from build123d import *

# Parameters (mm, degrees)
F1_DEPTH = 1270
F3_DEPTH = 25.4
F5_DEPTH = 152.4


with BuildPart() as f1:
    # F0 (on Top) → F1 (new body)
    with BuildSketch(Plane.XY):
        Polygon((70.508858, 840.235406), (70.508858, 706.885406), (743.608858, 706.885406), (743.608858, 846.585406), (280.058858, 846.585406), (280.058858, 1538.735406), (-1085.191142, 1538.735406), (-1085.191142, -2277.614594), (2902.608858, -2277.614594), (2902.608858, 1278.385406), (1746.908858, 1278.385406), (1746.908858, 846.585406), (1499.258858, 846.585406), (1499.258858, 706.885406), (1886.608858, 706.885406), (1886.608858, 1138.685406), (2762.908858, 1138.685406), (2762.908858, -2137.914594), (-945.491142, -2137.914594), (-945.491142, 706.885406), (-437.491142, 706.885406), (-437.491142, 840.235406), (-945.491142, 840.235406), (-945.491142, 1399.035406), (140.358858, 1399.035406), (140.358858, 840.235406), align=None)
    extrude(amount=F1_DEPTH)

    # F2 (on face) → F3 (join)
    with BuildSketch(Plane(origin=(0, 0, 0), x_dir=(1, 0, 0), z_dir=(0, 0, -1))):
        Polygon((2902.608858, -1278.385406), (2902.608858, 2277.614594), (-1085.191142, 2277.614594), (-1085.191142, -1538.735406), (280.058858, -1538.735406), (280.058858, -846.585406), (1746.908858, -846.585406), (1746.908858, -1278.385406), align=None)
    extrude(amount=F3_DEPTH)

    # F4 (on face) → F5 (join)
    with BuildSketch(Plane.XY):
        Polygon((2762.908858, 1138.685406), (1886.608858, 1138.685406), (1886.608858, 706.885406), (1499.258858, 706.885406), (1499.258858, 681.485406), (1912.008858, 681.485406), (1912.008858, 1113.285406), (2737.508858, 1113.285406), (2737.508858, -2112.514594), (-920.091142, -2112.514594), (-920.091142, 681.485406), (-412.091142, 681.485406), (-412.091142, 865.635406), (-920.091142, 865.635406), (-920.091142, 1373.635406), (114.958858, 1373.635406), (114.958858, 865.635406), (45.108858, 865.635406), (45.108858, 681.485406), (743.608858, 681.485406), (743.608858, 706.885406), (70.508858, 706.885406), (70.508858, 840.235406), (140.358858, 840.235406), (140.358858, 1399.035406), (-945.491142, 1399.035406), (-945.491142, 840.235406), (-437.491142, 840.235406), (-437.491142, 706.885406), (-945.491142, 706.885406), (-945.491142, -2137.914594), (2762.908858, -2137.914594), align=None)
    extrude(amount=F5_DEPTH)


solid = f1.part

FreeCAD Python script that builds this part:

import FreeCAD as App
import Part
import Sketcher
Q = App.Units.Quantity


def add_polygon(sketch, points):
    """Adds a closed chain of lines whose ends are joined by coincident constraints."""
    first, n = sketch.GeometryCount, len(points)
    for a, b in zip(points, points[1:] + points[:1]):
        sketch.addGeometry(Part.LineSegment(App.Vector(*a, 0), App.Vector(*b, 0)), False)
    for i in range(n):
        sketch.addConstraint(Sketcher.Constraint("Coincident", first + i, 2, first + (i + 1) % n, 1))

doc = App.newDocument("Part")
body = doc.addObject("PartDesign::Body", "Body")

sketch1 = body.newObject("Sketcher::SketchObject", "Sketch")
sketch1.AttachmentSupport = (doc.getObject("XY_Plane"), [""])
sketch1.MapMode = "FlatFace"
add_polygon(sketch1, [(71, 840), (71, 707), (744, 707), (744, 847), (280, 847), (280, 1539), (-1085, 1539), (-1085, -2278), (2903, -2278), (2903, 1278), (1747, 1278), (1747, 847), (1499, 847), (1499, 707), (1887, 707), (1887, 1139), (2763, 1139), (2763, -2138), (-945, -2138), (-945, 707), (-437, 707), (-437, 840), (-945, 840), (-945, 1399), (140, 1399), (140, 840)])
sketch1.addConstraint([
    Sketcher.Constraint("Vertical", 0),
    Sketcher.Constraint("Horizontal", 1),
    Sketcher.Constraint("Vertical", 2),
    Sketcher.Constraint("Horizontal", 3),
    Sketcher.Constraint("Vertical", 4),
    Sketcher.Constraint("Horizontal", 5),
    Sketcher.Constraint("Vertical", 6),
    Sketcher.Constraint("Horizontal", 7),
    Sketcher.Constraint("Vertical", 8),
    Sketcher.Constraint("Horizontal", 9),
    Sketcher.Constraint("Vertical", 10),
    Sketcher.Constraint("Horizontal", 11),
    Sketcher.Constraint("Vertical", 12),
    Sketcher.Constraint("Horizontal", 13),
    Sketcher.Constraint("Vertical", 14),
    Sketcher.Constraint("Horizontal", 15),
    Sketcher.Constraint("Vertical", 16),
    Sketcher.Constraint("Horizontal", 17),
    Sketcher.Constraint("Vertical", 18),
    Sketcher.Constraint("Horizontal", 19),
    Sketcher.Constraint("Vertical", 20),
    Sketcher.Constraint("Horizontal", 21),
    Sketcher.Constraint("Vertical", 22),
    Sketcher.Constraint("Horizontal", 23),
    Sketcher.Constraint("Vertical", 24),
    Sketcher.Constraint("Horizontal", 25),
    Sketcher.Constraint("Horizontal", 3, 2, 10, 2),
    Sketcher.Constraint("Horizontal", 1, 2, 12, 2),
    Sketcher.Constraint("Horizontal", 13, 2, 18, 2),
    Sketcher.Constraint("Horizontal", 21, 2, 24, 2),
    Sketcher.Constraint("Vertical", 18, 2, 21, 2),
    Sketcher.Constraint("Equal", 10, 14),
    Sketcher.Constraint("DistanceX", 7, 1, 7, 2, Q("157 in")),
    Sketcher.Constraint("DistanceX", 17, 2, 17, 1, Q("146 in")),
    Sketcher.Constraint("DistanceX", 19, 1, 19, 2, Q("20 in")),
    Sketcher.Constraint("DistanceY", 8, 1, 8, 2, Q("140 in")),
    Sketcher.Constraint("DistanceY", 10, 2, 10, 1, Q("17 in")),
    Sketcher.Constraint("DistanceY", 16, 2, 16, 1, Q("129 in")),
    Sketcher.Constraint("DistanceY", 22, 1, 22, 2, Q("22 in")),
    Sketcher.Constraint("DistanceX", 1, 1, 1, 2, Q("26.5 in")),
    Sketcher.Constraint("DistanceX", 9, 2, 9, 1, Q("45.5 in")),
    Sketcher.Constraint("DistanceX", 15, 1, 15, 2, Q("34.5 in")),
    Sketcher.Constraint("DistanceY", 2, 1, 2, 2, Q("5.5 in")),
    Sketcher.Constraint("DistanceX", 5, 2, 2, 2, Q("72 in")),
    Sketcher.Constraint("DistanceX", 3, 2, 11, 2, Q("48 in")),
    Sketcher.Constraint("DistanceX", 1, 2, 13, 2, Q("45 in")),
    Sketcher.Constraint("DistanceX", 3, 2, 3, 1, Q("18.25 in")),
    Sketcher.Constraint("DistanceX", 23, 1, 23, 2, Q("42.75 in")),
    Sketcher.Constraint("DistanceY", 0, 2, 0, 1, Q("5.25 in")),
    Sketcher.Constraint("DistanceY", 4, 1, 4, 2, Q("27.25 in")),
    Sketcher.Constraint("DistanceX", -1, 1, 0, 2, Q("70.508858 mm")),
    Sketcher.Constraint("DistanceY", -1, 1, 0, 2, Q("706.885406 mm")),
])
pad1 = body.newObject("PartDesign::Pad", "Pad")
pad1.Profile = sketch1
pad1.Length = Q("50 in")

sketch2 = body.newObject("Sketcher::SketchObject", "Sketch001")
sketch2.AttachmentSupport = (doc.getObject("XY_Plane"), [""])
sketch2.MapMode = "FlatFace"
add_polygon(sketch2, [(2903, 1278), (2903, -2278), (-1085, -2278), (-1085, 1539), (280, 1539), (280, 847), (1747, 847), (1747, 1278)])
sketch2.addConstraint([
    Sketcher.Constraint("Vertical", 0),
    Sketcher.Constraint("Horizontal", 1),
    Sketcher.Constraint("Vertical", 2),
    Sketcher.Constraint("Horizontal", 3),
    Sketcher.Constraint("Vertical", 4),
    Sketcher.Constraint("Horizontal", 5),
    Sketcher.Constraint("Vertical", 6),
    Sketcher.Constraint("Horizontal", 7),
    Sketcher.Constraint("DistanceX", 1, 2, 1, 1, Q("157 in")),
    Sketcher.Constraint("DistanceY", 0, 2, 0, 1, Q("140 in")),
    Sketcher.Constraint("DistanceY", 6, 1, 6, 2, Q("17 in")),
    Sketcher.Constraint("DistanceX", 7, 1, 7, 2, Q("45.5 in")),
    Sketcher.Constraint("DistanceX", 3, 1, 3, 2, Q("53.75 in")),
    Sketcher.Constraint("DistanceY", 2, 1, 2, 2, Q("150.25 in")),
    Sketcher.Constraint("DistanceX", -1, 1, 0, 2, Q("2902.608858 mm")),
    Sketcher.Constraint("DistanceY", 0, 2, -1, 1, Q("2277.614594 mm")),
])
pad2 = body.newObject("PartDesign::Pad", "Pad001")
pad2.Profile = sketch2
pad2.Length = Q("1 in")
pad2.Reversed = True

sketch3 = body.newObject("Sketcher::SketchObject", "Sketch002")
sketch3.AttachmentSupport = (doc.getObject("XY_Plane"), [""])
sketch3.MapMode = "FlatFace"
add_polygon(sketch3, [(2763, 1139), (1887, 1139), (1887, 707), (1499, 707), (1499, 681), (1912, 681), (1912, 1113), (2738, 1113), (2738, -2113), (-920, -2113), (-920, 681), (-412, 681), (-412, 866), (-920, 866), (-920, 1374), (115, 1374), (115, 866), (45, 866), (45, 681), (744, 681), (744, 707), (71, 707), (71, 840), (140, 840), (140, 1399), (-945, 1399), (-945, 840), (-437, 840), (-437, 707), (-945, 707), (-945, -2138), (2763, -2138)])
sketch3.addConstraint([
    Sketcher.Constraint("Horizontal", 0),
    Sketcher.Constraint("Vertical", 1),
    Sketcher.Constraint("Horizontal", 2),
    Sketcher.Constraint("Vertical", 3),
    Sketcher.Constraint("Horizontal", 4),
    Sketcher.Constraint("Vertical", 5),
    Sketcher.Constraint("Horizontal", 6),
    Sketcher.Constraint("Vertical", 7),
    Sketcher.Constraint("Horizontal", 8),
    Sketcher.Constraint("Vertical", 9),
    Sketcher.Constraint("Horizontal", 10),
    Sketcher.Constraint("Vertical", 11),
    Sketcher.Constraint("Horizontal", 12),
    Sketcher.Constraint("Vertical", 13),
    Sketcher.Constraint("Horizontal", 14),
    Sketcher.Constraint("Vertical", 15),
    Sketcher.Constraint("Horizontal", 16),
    Sketcher.Constraint("Vertical", 17),
    Sketcher.Constraint("Horizontal", 18),
    Sketcher.Constraint("Vertical", 19),
    Sketcher.Constraint("Horizontal", 20),
    Sketcher.Constraint("Vertical", 21),
    Sketcher.Constraint("Horizontal", 22),
    Sketcher.Constraint("Vertical", 23),
    Sketcher.Constraint("Horizontal", 24),
    Sketcher.Constraint("Vertical", 25),
    Sketcher.Constraint("Horizontal", 26),
    Sketcher.Constraint("Vertical", 27),
    Sketcher.Constraint("Horizontal", 28),
    Sketcher.Constraint("Vertical", 29),
    Sketcher.Constraint("Horizontal", 30),
    Sketcher.Constraint("Vertical", 31),
    Sketcher.Constraint("Horizontal", 4, 2, 9, 2),
    Sketcher.Constraint("Horizontal", 12, 2, 15, 2),
    Sketcher.Constraint("Horizontal", 10, 2, 17, 2),
    Sketcher.Constraint("Horizontal", 2, 2, 19, 2),
    Sketcher.Constraint("Horizontal", 22, 2, 25, 2),
    Sketcher.Constraint("Horizontal", 20, 2, 27, 2),
    Sketcher.Constraint("Vertical", 9, 2, 12, 2),
    Sketcher.Constraint("Vertical", 25, 2, 28, 2),
    Sketcher.Constraint("Equal", 16, 22),
    Sketcher.Constraint("Equal", 12, 26),
    Sketcher.Constraint("Equal", 1, 5),
    Sketcher.Constraint("Equal", 28, 13),
    Sketcher.Constraint("DistanceX", 8, 2, 8, 1, Q("144 in")),
    Sketcher.Constraint("DistanceX", 10, 1, 10, 2, Q("20 in")),
    Sketcher.Constraint("DistanceX", 30, 1, 30, 2, Q("146 in")),
    Sketcher.Constraint("DistanceY", 1, 2, 1, 1, Q("17 in")),
    Sketcher.Constraint("DistanceY", 3, 2, 3, 1, Q("1 in")),
    Sketcher.Constraint("DistanceY", 7, 2, 7, 1, Q("127 in")),
    Sketcher.Constraint("DistanceY", 23, 1, 23, 2, Q("22 in")),
    Sketcher.Constraint("DistanceY", 29, 2, 29, 1, Q("112 in")),
    Sketcher.Constraint("DistanceX", 0, 2, 0, 1, Q("34.5 in")),
    Sketcher.Constraint("DistanceX", 6, 1, 6, 2, Q("32.5 in")),
    Sketcher.Constraint("DistanceX", 18, 1, 18, 2, Q("27.5 in")),
    Sketcher.Constraint("DistanceX", 20, 2, 20, 1, Q("26.5 in")),
    Sketcher.Constraint("DistanceX", 1, 2, 4, 2, Q("1 in")),
    Sketcher.Constraint("DistanceX", 11, 2, 16, 2, Q("18 in")),
    Sketcher.Constraint("DistanceY", 21, 2, 16, 2, Q("1 in")),
    Sketcher.Constraint("DistanceX", 2, 2, 2, 1, Q("15.25 in")),
    Sketcher.Constraint("DistanceX", 14, 1, 14, 2, Q("40.75 in")),
    Sketcher.Constraint("DistanceY", 11, 1, 11, 2, Q("7.25 in")),
    Sketcher.Constraint("DistanceX", -1, 1, 0, 2, Q("1886.608858 mm")),
    Sketcher.Constraint("DistanceY", -1, 1, 0, 2, Q("1138.685406 mm")),
])
pad3 = body.newObject("PartDesign::Pad", "Pad002")
pad3.Profile = sketch3
pad3.Length = Q("6 in")

doc.recompute()
